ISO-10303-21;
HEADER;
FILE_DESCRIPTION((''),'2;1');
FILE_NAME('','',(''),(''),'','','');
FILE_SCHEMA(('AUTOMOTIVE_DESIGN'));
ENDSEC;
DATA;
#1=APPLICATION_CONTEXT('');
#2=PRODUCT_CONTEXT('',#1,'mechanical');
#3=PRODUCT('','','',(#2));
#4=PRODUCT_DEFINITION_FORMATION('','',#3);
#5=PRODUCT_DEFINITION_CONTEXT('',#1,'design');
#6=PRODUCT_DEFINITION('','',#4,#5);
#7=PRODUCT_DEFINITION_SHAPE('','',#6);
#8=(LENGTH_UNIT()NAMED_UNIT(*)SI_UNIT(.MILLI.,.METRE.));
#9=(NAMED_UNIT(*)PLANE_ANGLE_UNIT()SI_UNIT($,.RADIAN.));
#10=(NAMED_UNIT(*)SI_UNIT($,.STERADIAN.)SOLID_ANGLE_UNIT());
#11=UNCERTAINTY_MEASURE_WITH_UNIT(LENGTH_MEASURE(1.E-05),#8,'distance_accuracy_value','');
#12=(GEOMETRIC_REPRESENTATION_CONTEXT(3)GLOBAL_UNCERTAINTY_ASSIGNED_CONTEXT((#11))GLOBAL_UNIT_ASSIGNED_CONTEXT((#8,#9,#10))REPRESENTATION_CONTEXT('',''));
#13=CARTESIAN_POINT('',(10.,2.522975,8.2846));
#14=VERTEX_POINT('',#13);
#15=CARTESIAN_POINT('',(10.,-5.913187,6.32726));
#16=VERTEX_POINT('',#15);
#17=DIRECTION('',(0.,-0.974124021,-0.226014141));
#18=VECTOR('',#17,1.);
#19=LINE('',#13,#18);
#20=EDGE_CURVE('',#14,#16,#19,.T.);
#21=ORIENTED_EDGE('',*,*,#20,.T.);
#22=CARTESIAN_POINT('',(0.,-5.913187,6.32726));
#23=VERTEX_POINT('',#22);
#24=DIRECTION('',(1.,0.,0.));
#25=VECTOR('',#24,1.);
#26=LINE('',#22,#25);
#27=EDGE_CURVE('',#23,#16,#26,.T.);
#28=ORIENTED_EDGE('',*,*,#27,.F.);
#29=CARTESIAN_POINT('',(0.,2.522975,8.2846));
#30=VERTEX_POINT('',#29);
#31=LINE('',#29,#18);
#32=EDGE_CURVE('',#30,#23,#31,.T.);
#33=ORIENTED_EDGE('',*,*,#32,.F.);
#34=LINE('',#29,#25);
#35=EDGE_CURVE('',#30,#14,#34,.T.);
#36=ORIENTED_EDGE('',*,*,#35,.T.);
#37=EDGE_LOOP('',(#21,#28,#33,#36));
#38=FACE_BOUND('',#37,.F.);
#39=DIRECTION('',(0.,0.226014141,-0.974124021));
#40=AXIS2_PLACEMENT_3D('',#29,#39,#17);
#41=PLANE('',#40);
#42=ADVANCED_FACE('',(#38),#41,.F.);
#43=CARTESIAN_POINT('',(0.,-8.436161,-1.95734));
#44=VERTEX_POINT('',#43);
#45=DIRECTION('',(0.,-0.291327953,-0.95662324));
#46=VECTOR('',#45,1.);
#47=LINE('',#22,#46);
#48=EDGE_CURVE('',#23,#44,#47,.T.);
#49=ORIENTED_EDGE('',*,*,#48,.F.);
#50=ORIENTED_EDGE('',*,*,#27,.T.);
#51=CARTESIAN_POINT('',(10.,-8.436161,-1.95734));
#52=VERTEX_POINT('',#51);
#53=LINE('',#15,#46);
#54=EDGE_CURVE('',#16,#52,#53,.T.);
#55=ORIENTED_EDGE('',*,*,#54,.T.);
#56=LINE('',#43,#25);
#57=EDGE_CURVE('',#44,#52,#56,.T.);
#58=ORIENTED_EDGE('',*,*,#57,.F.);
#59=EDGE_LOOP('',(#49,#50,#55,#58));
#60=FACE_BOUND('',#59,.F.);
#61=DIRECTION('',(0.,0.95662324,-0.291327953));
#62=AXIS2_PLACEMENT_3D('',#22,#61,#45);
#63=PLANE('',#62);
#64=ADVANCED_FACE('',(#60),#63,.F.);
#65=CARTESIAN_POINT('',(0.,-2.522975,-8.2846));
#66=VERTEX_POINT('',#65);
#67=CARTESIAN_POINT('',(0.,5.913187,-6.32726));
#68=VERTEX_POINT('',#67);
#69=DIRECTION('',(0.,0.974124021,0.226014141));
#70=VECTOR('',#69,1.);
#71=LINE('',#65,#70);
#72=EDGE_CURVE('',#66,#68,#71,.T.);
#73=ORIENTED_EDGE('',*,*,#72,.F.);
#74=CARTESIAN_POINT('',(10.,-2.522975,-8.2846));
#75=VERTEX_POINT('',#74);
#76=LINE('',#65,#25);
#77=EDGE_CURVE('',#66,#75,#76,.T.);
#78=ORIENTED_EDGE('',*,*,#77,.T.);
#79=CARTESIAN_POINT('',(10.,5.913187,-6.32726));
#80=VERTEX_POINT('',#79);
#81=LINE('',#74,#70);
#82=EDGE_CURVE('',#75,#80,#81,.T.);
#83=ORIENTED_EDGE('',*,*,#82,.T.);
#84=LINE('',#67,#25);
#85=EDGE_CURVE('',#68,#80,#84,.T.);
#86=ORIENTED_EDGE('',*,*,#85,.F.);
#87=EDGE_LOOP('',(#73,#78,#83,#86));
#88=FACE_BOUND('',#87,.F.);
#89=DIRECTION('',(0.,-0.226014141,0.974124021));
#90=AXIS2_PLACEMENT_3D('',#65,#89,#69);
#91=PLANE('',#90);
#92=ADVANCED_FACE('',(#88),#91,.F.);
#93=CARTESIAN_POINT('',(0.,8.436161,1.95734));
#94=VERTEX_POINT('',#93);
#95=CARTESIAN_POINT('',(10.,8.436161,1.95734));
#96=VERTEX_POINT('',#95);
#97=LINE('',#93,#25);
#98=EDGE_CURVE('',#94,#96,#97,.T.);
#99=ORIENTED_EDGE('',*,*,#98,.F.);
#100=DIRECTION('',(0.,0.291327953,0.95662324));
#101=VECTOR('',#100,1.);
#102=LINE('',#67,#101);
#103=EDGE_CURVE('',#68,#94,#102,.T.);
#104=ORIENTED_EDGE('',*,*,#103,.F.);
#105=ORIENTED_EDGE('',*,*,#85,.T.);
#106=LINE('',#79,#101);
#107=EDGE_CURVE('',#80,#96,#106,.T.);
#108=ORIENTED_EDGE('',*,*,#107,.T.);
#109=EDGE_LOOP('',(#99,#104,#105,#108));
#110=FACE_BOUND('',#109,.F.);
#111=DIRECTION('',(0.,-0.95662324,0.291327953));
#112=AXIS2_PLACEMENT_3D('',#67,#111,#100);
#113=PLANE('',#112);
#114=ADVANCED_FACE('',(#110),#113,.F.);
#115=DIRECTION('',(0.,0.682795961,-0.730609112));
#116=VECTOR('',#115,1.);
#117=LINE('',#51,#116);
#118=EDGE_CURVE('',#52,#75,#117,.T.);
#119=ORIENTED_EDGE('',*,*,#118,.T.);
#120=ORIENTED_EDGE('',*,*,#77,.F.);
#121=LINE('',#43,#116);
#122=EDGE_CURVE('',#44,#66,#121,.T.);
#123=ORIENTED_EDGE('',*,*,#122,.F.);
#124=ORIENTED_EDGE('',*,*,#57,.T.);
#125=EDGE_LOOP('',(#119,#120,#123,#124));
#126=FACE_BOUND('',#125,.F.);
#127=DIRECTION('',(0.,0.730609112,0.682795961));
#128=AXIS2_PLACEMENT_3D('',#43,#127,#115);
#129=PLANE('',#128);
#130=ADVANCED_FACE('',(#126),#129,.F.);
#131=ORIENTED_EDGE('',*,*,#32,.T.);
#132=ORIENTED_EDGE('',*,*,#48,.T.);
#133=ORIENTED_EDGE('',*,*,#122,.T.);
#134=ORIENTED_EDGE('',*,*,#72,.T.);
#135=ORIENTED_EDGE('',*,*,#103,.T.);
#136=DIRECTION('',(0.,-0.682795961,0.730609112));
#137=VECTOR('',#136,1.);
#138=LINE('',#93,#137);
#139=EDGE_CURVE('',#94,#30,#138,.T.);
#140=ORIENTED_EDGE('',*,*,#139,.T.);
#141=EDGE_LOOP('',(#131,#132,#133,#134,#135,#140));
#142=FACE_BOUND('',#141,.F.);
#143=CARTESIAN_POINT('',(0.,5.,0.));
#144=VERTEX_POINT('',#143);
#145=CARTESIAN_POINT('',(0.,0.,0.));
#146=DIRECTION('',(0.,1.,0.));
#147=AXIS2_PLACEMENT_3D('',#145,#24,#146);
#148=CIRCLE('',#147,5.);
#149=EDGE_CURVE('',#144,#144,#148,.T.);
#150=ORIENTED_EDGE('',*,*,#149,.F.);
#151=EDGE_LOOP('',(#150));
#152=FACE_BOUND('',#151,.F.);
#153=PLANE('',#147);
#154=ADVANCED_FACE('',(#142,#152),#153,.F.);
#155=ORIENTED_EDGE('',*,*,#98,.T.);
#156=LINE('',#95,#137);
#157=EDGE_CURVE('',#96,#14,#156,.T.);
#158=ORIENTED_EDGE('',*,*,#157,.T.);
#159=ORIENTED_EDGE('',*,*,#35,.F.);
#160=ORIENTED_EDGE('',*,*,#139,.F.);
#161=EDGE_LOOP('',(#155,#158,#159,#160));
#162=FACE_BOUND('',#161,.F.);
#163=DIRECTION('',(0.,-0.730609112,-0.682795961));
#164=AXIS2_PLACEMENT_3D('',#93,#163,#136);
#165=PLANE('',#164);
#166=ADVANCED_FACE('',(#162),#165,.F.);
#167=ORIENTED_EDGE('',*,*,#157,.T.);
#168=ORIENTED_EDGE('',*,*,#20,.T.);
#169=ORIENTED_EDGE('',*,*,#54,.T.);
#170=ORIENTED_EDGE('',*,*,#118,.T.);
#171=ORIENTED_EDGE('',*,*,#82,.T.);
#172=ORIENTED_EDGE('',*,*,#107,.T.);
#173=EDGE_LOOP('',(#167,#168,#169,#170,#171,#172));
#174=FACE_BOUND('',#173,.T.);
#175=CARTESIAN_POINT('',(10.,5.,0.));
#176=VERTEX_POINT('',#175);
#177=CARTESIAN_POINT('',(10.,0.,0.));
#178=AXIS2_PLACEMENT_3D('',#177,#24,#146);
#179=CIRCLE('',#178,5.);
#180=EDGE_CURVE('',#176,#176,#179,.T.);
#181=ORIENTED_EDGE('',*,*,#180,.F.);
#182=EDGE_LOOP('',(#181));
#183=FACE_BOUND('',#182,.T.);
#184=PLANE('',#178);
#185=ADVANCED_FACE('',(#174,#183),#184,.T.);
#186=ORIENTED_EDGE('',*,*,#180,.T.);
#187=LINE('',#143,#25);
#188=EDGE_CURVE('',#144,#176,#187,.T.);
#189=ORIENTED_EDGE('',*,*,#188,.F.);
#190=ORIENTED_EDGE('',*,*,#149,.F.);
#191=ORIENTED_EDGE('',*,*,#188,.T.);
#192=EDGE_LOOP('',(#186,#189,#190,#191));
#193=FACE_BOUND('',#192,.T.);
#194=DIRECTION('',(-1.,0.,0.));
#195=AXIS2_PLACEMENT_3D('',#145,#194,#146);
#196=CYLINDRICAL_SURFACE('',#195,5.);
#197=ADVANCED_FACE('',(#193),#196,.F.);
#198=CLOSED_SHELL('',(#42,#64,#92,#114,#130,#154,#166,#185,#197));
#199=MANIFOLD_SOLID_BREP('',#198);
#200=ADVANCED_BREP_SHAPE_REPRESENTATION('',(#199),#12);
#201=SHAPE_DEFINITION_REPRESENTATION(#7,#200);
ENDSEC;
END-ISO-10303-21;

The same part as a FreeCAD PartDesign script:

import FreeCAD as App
import Part
import Sketcher

V = App.Vector
Q = App.Units.Quantity

doc = App.newDocument("Part")
body = doc.addObject("PartDesign::Body", "Body")

sketch1 = body.newObject("Sketcher::SketchObject", "Sketch")
sketch1.AttachmentSupport = (doc.getObject("YZ_Plane"), [""])
sketch1.MapMode = "FlatFace"
sketch1.addGeometry(Part.LineSegment(V(6, -6, 0), V(8, 2, 0)), False)
sketch1.addGeometry(Part.LineSegment(V(8, 2, 0), V(3, 8, 0)), False)
sketch1.addGeometry(Part.LineSegment(V(3, 8, 0), V(-6, 6, 0)), False)
sketch1.addGeometry(Part.LineSegment(V(-6, 6, 0), V(-8, -2, 0)), False)
sketch1.addGeometry(Part.LineSegment(V(-8, -2, 0), V(-3, -8, 0)), False)
sketch1.addGeometry(Part.LineSegment(V(-3, -8, 0), V(6, -6, 0)), False)
sketch1.addGeometry(Part.Circle(V(0, 0, 0), V(0, 0, 1), 5), False)
sketch1.addConstraint(Sketcher.Constraint("Coincident", 0, 2, 1, 1))
sketch1.addConstraint(Sketcher.Constraint("Coincident", 1, 2, 2, 1))
sketch1.addConstraint(Sketcher.Constraint("Coincident", 2, 2, 3, 1))
sketch1.addConstraint(Sketcher.Constraint("Coincident", 3, 2, 4, 1))
sketch1.addConstraint(Sketcher.Constraint("Coincident", 4, 2, 5, 1))
sketch1.addConstraint(Sketcher.Constraint("Coincident", 5, 2, 0, 1))
sketch1.addConstraint(Sketcher.Constraint("Coincident", 6, 3, -1, 1))
sketch1.addConstraint(Sketcher.Constraint("Symmetric", 0, 2, 3, 2, -1, 1))
sketch1.addConstraint(Sketcher.Constraint("Symmetric", 1, 2, 4, 2, -1, 1))
sketch1.addConstraint(Sketcher.Constraint("Symmetric", 2, 2, 5, 2, -1, 1))
sketch1.addConstraint(Sketcher.Constraint("Equal", 0, 1))
sketch1.addConstraint(Sketcher.Constraint("Equal", 1, 2))
sketch1.addConstraint(Sketcher.Constraint("Diameter", 6, Q("10 mm")))
sketch1.addConstraint(Sketcher.Constraint("DistanceY", -1, 1, 1, 2, Q("8.2846 mm")))
sketch1.addConstraint(Sketcher.Constraint("DistanceY", 3, 2, 2, 2, Q("8.2846 mm")))
sketch1.addConstraint(Sketcher.Constraint("DistanceX", -1, 1, 0, 2, Q("8.436161 mm")))
sketch1.addConstraint(Sketcher.Constraint("DistanceY", -1, 1, 0, 2, Q("1.95734 mm")))
pad1 = body.newObject("PartDesign::Pad", "Pad")
pad1.Profile = sketch1
pad1.Length = 10

doc.recompute()
